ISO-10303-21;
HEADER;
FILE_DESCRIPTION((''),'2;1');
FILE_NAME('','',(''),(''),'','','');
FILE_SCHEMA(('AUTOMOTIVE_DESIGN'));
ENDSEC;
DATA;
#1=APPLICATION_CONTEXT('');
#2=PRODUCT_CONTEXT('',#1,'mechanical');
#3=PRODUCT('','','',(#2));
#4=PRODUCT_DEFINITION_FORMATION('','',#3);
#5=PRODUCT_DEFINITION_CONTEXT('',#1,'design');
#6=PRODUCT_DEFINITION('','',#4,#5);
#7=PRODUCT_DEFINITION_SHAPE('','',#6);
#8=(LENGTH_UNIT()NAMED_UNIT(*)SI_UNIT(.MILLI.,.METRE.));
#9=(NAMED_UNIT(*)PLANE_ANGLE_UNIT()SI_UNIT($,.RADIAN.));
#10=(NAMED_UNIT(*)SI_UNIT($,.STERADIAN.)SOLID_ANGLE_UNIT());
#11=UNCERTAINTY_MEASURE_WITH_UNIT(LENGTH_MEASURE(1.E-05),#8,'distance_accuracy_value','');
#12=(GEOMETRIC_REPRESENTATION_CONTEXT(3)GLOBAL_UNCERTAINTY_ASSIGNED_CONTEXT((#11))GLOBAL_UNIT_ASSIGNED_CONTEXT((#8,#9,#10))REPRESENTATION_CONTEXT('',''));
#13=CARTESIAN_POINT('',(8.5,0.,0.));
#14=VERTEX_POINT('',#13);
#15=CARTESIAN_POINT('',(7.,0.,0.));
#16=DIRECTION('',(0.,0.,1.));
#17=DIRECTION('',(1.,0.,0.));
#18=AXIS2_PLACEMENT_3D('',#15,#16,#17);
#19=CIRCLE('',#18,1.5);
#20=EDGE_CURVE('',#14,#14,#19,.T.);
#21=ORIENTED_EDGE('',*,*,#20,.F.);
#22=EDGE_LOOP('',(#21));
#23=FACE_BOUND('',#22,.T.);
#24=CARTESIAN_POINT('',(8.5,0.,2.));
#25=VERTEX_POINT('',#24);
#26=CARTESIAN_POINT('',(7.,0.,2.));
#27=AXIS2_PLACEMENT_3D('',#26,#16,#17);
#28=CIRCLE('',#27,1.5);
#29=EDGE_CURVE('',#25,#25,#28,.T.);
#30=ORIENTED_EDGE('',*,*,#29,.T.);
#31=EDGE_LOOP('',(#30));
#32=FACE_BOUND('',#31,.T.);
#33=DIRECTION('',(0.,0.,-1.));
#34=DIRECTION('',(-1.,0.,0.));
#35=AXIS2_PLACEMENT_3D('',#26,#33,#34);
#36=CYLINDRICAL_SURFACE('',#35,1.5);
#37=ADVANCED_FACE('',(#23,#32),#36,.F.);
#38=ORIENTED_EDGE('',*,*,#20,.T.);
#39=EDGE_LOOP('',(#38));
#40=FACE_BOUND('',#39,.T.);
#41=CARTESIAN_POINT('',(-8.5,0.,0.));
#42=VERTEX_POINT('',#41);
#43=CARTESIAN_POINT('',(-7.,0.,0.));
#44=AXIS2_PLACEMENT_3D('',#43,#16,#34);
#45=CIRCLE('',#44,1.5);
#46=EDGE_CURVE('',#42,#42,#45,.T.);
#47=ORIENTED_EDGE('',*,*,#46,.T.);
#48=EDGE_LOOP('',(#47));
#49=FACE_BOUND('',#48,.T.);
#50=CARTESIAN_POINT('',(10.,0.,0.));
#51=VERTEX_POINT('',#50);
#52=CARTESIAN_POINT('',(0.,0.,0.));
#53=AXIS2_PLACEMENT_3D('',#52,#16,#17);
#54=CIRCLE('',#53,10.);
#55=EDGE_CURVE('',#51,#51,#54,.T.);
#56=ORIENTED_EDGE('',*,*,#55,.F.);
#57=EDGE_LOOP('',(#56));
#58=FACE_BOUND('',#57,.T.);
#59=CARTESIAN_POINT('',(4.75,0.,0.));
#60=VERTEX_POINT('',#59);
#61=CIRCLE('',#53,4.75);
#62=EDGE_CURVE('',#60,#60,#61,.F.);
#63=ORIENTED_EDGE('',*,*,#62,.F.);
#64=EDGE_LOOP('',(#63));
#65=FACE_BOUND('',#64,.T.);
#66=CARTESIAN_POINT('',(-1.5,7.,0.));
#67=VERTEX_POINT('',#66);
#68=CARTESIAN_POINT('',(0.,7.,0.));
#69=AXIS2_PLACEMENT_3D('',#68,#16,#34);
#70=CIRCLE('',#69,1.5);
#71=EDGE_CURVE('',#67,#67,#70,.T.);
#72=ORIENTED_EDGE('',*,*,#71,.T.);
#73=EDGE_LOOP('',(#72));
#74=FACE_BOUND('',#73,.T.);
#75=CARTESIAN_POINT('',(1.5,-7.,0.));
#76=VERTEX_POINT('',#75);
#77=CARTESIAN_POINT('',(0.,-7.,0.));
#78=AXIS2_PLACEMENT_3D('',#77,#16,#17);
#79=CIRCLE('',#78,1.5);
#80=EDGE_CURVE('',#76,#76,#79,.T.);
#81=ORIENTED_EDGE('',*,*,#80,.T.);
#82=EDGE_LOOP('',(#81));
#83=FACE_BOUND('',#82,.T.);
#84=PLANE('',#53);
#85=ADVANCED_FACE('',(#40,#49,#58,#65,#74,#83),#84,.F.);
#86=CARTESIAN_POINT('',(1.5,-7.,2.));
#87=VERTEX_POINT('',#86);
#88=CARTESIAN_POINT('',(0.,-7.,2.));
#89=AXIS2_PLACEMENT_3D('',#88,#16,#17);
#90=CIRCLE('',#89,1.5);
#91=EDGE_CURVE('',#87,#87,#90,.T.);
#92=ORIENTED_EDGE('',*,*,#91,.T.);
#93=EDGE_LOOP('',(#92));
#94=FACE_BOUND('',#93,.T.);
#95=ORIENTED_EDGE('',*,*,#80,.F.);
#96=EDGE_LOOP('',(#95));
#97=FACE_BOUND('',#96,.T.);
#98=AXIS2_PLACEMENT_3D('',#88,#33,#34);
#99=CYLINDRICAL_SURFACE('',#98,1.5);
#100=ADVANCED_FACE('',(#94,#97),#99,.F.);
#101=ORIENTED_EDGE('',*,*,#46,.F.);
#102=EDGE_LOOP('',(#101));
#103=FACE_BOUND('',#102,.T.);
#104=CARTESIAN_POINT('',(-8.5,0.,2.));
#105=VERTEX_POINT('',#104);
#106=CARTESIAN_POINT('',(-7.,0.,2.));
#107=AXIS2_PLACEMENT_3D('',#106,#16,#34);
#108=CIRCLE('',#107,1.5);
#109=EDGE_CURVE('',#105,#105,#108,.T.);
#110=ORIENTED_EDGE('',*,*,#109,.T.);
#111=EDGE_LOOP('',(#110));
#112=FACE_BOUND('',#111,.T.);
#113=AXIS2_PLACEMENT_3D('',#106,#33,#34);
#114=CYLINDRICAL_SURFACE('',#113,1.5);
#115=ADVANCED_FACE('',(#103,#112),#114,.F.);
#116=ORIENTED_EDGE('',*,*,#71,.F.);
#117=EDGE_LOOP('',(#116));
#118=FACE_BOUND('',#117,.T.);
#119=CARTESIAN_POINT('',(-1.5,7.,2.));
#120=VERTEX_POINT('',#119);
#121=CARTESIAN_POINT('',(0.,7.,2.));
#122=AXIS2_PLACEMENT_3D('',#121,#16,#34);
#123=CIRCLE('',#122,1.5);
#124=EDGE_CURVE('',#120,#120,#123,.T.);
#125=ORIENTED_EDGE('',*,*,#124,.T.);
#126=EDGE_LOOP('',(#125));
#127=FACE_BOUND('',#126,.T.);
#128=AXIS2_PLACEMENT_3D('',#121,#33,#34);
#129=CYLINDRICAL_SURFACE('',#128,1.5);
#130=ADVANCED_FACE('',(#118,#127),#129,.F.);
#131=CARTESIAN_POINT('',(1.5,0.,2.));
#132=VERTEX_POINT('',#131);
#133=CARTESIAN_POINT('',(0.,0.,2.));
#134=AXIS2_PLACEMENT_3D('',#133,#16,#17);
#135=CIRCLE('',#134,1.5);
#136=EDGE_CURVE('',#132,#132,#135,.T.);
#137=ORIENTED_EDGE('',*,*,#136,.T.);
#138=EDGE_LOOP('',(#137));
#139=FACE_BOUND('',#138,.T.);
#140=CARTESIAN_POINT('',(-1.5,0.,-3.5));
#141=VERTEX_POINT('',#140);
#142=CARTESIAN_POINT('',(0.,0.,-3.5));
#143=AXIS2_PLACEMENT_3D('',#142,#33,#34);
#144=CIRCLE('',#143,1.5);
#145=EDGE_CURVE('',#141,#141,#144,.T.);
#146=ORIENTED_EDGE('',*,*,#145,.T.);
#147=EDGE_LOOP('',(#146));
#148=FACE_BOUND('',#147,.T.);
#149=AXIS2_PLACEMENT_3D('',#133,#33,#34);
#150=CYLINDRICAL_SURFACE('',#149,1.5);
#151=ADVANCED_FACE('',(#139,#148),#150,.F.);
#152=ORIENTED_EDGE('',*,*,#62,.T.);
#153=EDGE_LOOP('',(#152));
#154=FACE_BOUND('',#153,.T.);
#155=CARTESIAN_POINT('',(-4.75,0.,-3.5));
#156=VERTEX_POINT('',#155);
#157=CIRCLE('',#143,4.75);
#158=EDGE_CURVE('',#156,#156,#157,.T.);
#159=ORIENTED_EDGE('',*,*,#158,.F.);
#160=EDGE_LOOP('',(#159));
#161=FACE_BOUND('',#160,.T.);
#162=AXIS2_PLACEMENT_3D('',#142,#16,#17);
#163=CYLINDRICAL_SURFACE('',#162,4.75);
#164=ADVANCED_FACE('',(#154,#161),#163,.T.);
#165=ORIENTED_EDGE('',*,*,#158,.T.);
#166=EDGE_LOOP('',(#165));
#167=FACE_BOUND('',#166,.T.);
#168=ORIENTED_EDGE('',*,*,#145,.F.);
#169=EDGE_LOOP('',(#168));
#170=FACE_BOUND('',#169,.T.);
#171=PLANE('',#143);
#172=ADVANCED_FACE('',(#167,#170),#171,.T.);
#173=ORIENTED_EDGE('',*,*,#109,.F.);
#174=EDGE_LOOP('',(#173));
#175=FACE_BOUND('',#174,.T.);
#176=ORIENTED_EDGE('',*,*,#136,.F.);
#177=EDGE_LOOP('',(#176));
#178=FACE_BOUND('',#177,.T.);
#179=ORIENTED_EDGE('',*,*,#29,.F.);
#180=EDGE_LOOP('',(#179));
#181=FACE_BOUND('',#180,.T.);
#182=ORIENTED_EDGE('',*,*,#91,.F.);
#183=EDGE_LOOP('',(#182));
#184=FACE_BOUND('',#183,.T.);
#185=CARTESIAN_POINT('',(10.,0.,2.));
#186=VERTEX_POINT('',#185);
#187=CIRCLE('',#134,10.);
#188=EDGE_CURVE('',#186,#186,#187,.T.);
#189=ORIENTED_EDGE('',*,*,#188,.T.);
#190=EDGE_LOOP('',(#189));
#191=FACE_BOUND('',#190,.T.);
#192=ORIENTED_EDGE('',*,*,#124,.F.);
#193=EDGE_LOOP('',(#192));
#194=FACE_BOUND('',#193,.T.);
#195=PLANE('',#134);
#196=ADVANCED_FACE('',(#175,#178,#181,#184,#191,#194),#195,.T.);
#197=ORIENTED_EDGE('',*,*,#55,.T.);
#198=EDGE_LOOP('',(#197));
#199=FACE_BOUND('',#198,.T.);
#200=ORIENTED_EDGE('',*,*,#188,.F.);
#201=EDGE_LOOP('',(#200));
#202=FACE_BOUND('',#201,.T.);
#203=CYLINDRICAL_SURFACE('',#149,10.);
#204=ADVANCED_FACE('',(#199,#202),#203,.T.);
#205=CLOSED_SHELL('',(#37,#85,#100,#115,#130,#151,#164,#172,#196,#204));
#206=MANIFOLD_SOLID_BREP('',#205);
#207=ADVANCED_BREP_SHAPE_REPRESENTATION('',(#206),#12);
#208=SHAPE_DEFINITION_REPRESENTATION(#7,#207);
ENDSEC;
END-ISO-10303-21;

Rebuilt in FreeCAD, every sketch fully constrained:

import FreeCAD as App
import Part
import Sketcher
from FreeCAD import Vector
Q = App.Units.Quantity

doc = App.newDocument("Part")
body = doc.addObject("PartDesign::Body", "Body")

# Sketch on XY plane
sketch1 = doc.addObject("Sketcher::SketchObject", "Sketch")
body.addObject(sketch1)
sketch1.AttachmentSupport = (doc.XY_Plane, [""])
sketch1.MapMode = "FlatFace"
sketch1.addGeometry([
    Part.Circle(Vector(0, 0, 0), Vector(0, 0, 1), 10),  # 0
    Part.Circle(Vector(0, -7, 0), Vector(0, 0, 1), 1.5),  # 1
    Part.Circle(Vector(-7, 0, 0), Vector(0, 0, 1), 1.5),  # 2
    Part.Circle(Vector(0, 0, 0), Vector(0, 0, 1), 1.5),  # 3
    Part.Circle(Vector(7, 0, 0), Vector(0, 0, 1), 1.5),  # 4
    Part.Circle(Vector(0, 7, 0), Vector(0, 0, 1), 1.5),  # 5
], False)
sketch1.addConstraint([
    Sketcher.Constraint("Coincident", 0, 3, -1, 1),
    Sketcher.Constraint("Coincident", 3, 3, -1, 1),
    Sketcher.Constraint("Equal", 1, 2),
    Sketcher.Constraint("Equal", 2, 3),
    Sketcher.Constraint("Equal", 3, 4),
    Sketcher.Constraint("Equal", 4, 5),
    Sketcher.Constraint("Symmetric", 2, 3, 4, 3, -1, 1),
    Sketcher.Constraint("Symmetric", 1, 3, 5, 3, -1, 1),
    Sketcher.Constraint("PointOnObject", 1, 3, -2),
    Sketcher.Constraint("PointOnObject", 2, 3, -1),
    Sketcher.Constraint("Diameter", 0, Q("20 mm")),
    Sketcher.Constraint("Diameter", 1, Q("3 mm")),
    Sketcher.Constraint("DistanceY", 1, 3, -1, 1, Q("7 mm")),
    Sketcher.Constraint("DistanceX", 2, 3, -1, 1, Q("7 mm")),
])
pad1 = doc.addObject("PartDesign::Pad", "Pad")
body.addObject(pad1)
pad1.Profile = sketch1
pad1.Length = 2

# Sketch on XY plane
sketch2 = doc.addObject("Sketcher::SketchObject", "Sketch001")
body.addObject(sketch2)
sketch2.AttachmentSupport = (doc.XY_Plane, [""])
sketch2.MapMode = "FlatFace"
sketch2.AttachmentOffset = App.Placement(Vector(0, 0, -3.5), App.Rotation())
sketch2.addGeometry([
    Part.Circle(Vector(0, 0, 0), Vector(0, 0, 1), 4.8),
    Part.Circle(Vector(0, 0, 0), Vector(0, 0, 1), 1.5),
], False)
sketch2.addConstraint([
    Sketcher.Constraint("Coincident", 0, 3, -1, 1),
    Sketcher.Constraint("Coincident", 1, 3, -1, 1),
    Sketcher.Constraint("Diameter", 1, Q("3 mm")),
    Sketcher.Constraint("Diameter", 0, Q("9.5 mm")),
])
pad2 = doc.addObject("PartDesign::Pad", "Pad001")
body.addObject(pad2)
pad2.Profile = sketch2
pad2.Length = 3.5

doc.recompute()
